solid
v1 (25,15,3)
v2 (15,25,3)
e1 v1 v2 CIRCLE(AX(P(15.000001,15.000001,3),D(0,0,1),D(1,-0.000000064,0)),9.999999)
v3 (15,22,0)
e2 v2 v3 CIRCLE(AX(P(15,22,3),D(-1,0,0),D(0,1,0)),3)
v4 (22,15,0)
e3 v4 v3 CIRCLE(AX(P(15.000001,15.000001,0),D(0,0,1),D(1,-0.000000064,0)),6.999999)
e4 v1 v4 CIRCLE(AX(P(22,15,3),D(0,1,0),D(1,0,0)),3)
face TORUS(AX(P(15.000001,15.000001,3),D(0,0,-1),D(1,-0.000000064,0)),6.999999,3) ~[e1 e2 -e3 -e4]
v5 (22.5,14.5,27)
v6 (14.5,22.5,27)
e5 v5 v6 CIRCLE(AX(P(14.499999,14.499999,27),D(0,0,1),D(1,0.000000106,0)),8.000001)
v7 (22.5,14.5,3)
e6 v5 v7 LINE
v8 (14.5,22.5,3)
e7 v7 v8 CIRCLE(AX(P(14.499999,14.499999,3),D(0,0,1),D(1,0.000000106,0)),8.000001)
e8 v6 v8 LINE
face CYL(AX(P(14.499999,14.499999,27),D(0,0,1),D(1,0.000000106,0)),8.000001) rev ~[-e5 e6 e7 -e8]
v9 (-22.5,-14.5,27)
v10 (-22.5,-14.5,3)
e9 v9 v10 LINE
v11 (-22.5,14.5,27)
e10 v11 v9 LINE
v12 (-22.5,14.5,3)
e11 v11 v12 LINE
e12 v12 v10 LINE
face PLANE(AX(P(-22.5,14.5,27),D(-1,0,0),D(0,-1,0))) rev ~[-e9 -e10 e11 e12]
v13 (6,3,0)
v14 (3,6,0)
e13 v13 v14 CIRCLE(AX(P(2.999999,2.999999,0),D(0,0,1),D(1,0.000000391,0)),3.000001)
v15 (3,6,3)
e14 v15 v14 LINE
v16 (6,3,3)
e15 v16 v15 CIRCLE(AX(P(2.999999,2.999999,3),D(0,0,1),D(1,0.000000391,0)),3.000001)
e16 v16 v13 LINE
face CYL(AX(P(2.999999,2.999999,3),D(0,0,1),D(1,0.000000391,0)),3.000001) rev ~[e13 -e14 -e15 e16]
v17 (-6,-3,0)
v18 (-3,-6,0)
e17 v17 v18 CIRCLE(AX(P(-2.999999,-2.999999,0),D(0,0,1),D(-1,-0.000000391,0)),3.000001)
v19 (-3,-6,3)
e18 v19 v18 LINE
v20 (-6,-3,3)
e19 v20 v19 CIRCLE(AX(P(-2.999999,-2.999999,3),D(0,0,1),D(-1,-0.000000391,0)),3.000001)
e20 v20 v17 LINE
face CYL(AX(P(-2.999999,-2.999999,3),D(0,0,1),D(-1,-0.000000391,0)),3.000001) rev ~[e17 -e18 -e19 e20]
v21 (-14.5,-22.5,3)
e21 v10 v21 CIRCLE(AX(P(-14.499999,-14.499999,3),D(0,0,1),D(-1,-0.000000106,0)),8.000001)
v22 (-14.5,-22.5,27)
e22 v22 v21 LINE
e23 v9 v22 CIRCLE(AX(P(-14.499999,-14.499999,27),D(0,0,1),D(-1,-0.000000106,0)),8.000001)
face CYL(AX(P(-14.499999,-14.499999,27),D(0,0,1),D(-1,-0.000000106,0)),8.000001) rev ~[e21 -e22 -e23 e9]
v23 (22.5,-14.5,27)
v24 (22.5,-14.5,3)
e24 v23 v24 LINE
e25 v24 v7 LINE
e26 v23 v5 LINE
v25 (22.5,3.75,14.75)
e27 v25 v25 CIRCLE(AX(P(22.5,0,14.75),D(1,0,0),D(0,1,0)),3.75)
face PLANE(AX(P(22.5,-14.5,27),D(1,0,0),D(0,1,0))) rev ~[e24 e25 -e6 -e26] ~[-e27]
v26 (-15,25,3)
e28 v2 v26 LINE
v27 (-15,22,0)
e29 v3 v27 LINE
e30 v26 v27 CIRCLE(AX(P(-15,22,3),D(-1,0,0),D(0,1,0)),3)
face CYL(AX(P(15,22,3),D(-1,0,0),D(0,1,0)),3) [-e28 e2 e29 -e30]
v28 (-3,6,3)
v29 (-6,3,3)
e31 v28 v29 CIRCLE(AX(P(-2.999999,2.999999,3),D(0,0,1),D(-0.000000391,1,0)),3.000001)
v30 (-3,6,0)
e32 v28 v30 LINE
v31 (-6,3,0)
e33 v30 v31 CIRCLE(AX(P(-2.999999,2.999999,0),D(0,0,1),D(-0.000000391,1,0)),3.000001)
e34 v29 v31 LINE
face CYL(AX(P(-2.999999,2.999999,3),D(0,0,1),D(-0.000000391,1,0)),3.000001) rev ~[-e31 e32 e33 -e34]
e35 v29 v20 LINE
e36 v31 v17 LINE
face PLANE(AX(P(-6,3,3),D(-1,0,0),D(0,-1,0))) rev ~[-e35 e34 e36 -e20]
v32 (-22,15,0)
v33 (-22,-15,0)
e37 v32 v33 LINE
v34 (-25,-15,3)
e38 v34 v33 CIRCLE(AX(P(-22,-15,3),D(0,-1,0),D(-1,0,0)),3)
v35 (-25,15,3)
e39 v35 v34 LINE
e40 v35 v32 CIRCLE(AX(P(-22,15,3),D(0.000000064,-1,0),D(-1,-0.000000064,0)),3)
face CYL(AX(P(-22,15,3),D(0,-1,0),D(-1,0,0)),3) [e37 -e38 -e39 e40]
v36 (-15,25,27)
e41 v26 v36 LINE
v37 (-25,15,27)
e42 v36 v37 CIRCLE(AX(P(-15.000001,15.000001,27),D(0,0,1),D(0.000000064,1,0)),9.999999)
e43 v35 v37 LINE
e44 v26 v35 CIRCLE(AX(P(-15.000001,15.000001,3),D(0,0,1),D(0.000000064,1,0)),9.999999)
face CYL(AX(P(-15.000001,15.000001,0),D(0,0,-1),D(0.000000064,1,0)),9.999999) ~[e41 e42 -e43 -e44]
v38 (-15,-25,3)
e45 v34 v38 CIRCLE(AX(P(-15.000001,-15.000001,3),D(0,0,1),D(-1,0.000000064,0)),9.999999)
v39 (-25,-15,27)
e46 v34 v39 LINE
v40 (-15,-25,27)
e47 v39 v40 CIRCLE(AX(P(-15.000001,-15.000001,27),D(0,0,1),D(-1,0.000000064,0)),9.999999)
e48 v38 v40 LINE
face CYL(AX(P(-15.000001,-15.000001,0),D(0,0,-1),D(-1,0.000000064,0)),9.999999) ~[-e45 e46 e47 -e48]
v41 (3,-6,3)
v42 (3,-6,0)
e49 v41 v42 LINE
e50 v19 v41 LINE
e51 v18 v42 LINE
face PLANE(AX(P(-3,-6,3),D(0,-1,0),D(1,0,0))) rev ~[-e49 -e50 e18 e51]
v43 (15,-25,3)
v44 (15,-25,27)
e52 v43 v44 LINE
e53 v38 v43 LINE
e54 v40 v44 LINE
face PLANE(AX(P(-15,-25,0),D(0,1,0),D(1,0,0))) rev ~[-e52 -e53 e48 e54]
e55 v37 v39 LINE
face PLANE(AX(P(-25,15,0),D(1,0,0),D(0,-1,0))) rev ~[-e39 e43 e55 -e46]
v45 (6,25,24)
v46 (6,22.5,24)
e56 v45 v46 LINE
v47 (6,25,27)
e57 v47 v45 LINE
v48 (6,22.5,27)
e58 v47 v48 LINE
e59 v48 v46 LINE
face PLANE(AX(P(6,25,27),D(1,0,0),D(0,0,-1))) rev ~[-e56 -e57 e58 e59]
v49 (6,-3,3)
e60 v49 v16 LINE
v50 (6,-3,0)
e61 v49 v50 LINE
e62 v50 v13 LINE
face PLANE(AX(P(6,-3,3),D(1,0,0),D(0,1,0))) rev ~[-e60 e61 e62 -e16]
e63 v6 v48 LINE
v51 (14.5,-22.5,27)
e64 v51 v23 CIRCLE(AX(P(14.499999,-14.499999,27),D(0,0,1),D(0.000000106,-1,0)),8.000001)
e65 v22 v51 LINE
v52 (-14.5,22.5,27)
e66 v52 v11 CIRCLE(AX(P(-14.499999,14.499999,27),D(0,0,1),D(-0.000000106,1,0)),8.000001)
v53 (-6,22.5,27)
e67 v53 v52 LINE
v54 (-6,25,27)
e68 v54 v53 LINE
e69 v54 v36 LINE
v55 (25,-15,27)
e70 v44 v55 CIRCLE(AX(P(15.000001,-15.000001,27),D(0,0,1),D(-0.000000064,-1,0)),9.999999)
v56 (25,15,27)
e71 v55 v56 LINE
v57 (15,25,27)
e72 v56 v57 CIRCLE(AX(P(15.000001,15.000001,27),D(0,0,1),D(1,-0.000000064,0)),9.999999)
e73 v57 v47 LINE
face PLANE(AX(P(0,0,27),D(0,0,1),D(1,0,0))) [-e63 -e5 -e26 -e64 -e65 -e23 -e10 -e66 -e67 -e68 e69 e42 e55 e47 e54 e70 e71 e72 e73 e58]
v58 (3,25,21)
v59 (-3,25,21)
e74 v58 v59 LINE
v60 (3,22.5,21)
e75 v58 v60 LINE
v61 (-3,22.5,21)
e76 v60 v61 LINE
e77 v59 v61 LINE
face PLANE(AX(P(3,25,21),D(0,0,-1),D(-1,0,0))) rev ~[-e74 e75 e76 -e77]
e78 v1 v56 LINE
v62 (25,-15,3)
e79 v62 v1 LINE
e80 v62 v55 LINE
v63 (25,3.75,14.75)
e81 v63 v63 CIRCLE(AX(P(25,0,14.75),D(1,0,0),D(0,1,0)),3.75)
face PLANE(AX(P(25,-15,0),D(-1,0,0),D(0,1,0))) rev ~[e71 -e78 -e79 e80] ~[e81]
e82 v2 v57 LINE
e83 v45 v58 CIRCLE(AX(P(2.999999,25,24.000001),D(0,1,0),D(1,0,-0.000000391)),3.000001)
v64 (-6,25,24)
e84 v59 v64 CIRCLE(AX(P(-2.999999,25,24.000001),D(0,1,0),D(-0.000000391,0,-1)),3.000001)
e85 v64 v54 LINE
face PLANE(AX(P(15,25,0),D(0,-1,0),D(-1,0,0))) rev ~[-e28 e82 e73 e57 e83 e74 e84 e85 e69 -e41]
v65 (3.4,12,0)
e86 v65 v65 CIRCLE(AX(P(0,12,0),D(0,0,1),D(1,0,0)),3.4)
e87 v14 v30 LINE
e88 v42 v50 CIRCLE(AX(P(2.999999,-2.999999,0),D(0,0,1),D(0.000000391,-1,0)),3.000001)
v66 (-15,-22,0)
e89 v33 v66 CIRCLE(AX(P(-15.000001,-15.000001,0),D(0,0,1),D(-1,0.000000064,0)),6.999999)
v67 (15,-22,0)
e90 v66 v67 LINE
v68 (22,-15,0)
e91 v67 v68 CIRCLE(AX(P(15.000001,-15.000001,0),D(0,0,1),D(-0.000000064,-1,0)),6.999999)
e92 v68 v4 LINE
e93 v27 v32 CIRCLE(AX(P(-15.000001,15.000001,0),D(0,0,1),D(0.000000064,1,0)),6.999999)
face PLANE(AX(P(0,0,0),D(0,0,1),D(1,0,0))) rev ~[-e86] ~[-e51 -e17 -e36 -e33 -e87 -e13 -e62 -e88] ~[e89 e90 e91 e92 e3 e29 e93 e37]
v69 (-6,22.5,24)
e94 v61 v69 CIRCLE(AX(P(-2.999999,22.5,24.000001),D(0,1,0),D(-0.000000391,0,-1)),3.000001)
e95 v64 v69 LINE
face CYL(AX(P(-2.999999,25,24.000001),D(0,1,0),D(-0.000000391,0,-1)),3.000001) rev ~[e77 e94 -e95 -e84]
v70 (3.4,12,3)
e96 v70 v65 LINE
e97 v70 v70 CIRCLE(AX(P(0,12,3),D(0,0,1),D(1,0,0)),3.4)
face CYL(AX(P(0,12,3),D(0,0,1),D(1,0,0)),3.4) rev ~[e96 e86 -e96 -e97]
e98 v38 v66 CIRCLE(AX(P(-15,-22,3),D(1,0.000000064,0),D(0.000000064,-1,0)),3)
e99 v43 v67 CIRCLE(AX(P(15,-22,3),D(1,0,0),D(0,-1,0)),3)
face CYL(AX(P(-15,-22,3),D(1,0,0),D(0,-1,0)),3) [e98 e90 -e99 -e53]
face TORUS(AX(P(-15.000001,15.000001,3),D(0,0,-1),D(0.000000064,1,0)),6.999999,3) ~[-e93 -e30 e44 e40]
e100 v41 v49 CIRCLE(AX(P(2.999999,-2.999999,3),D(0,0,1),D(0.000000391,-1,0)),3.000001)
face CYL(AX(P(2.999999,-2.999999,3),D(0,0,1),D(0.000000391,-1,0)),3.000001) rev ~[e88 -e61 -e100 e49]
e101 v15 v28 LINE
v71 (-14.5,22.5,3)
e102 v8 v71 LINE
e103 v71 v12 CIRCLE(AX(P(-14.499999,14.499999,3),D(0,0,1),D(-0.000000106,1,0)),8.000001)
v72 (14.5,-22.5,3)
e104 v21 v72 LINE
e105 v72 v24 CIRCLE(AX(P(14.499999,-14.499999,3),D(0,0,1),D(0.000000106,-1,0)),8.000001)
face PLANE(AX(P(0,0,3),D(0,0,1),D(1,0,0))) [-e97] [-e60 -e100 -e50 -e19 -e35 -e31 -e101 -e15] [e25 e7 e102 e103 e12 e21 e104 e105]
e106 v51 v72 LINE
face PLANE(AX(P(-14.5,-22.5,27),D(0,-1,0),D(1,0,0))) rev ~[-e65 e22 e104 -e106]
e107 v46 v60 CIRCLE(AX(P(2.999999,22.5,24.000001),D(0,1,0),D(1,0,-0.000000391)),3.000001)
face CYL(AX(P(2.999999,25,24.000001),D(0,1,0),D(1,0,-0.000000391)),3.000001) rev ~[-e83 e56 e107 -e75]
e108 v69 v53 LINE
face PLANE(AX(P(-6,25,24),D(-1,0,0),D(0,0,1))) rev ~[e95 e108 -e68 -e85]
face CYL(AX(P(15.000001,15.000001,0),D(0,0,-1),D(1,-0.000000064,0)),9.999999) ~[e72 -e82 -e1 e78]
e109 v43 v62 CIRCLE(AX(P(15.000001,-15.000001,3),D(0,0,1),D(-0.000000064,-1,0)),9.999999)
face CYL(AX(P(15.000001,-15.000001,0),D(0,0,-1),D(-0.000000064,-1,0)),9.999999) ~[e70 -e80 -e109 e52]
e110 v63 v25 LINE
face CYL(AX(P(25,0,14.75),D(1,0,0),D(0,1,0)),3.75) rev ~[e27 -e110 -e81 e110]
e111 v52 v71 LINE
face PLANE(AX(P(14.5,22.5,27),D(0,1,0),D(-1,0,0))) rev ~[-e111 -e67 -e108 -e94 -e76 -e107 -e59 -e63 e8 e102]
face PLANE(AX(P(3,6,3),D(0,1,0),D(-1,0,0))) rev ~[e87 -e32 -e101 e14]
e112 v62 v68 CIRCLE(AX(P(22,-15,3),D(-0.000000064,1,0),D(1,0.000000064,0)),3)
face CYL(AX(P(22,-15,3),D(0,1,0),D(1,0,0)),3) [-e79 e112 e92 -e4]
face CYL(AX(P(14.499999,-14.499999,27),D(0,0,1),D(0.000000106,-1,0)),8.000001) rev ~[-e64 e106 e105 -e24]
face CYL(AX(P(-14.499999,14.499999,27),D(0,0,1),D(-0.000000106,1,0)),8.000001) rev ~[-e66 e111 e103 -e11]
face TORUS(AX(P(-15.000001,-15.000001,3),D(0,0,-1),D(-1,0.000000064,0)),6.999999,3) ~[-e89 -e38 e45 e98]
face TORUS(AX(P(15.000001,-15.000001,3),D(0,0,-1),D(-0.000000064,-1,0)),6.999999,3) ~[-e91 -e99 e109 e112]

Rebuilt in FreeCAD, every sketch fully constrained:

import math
import FreeCAD as App
import Part
import Sketcher


def edges_at(feature, points):
    """Names of the edges that pass closest to the given points."""
    edges = feature.Shape.Edges
    near = lambda p: min(range(len(edges)), key=lambda i: edges[i].distToShape(Part.Vertex(*p))[0])
    return sorted({f"Edge{near(p) + 1}" for p in points})

doc = App.newDocument("Part")
params = doc.addObject("Spreadsheet::Sheet", "Params")
for row, (alias, value) in enumerate([
    ("sketch1_radius", "9.999999 mm"),
    ("sketch1_width", "30 mm"),
    ("pad1_length", "27 mm"),
    ("sketch2_radius", "8.000001 mm"),
    ("sketch2_width", "29 mm"),
    ("pocket1_length", "24 mm"),
    ("sketch3_radius", "3.000001 mm"),
    ("sketch3_width", "6 mm"),
    ("pocket2_length", "3 mm"),
    ("sketch4_radius", "3.000001 mm"),
    ("sketch4_diameter", "6.8 mm"),
    ("sketch4_width", "6 mm"),
    ("pocket3_length", "3 mm"),
    ("sketch5_radius", "3.000001 mm"),
    ("sketch5_width", "6 mm"),
    ("sketch5_height", "3 mm"),
    ("pocket4_length", "3 mm"),
    ("fillet_radius", "3 mm"),
    ("sketch6_diameter", "7.5 mm"),
    ("pocket5_length", "3 mm"),
], start=1):
    params.set(f"A{row}", alias)
    params.set(f"B{row}", "=" + value)
    params.setAlias(f"B{row}", alias)

body = doc.addObject("PartDesign::Body", "Body")

# Sketch on XY plane
sketch1 = doc.addObject("Sketcher::SketchObject", "Sketch")
body.addObject(sketch1)
sketch1.AttachmentSupport = (doc.XY_Plane, [""])
sketch1.MapMode = "FlatFace"
sketch1.addGeometry([
    Part.ArcOfCircle(Part.Circle(App.Vector(15, 15, 0), App.Vector(0, 0, 1), 10), math.radians(0), math.radians(90)),  # 0
    Part.LineSegment(App.Vector(15, 25, 0), App.Vector(-15, 25, 0)),  # 1
    Part.ArcOfCircle(Part.Circle(App.Vector(-15, 15, 0), App.Vector(0, 0, 1), 10), math.radians(90), math.radians(180)),  # 2
    Part.LineSegment(App.Vector(-25, 15, 0), App.Vector(-25, -15, 0)),  # 3
    Part.ArcOfCircle(Part.Circle(App.Vector(-15, -15, 0), App.Vector(0, 0, 1), 10), math.radians(180), math.radians(270)),  # 4
    Part.LineSegment(App.Vector(-15, -25, 0), App.Vector(15, -25, 0)),  # 5
    Part.ArcOfCircle(Part.Circle(App.Vector(15, -15, 0), App.Vector(0, 0, 1), 10), math.radians(-90), math.radians(0)),  # 6
    Part.LineSegment(App.Vector(25, -15, 0), App.Vector(25, 15, 0)),  # 7
], False)
sketch1.addConstraint([
    Sketcher.Constraint("Tangent", 0, 2, 1, 1),
    Sketcher.Constraint("Tangent", 1, 2, 2, 1),
    Sketcher.Constraint("Tangent", 2, 2, 3, 1),
    Sketcher.Constraint("Tangent", 3, 2, 4, 1),
    Sketcher.Constraint("Tangent", 4, 2, 5, 1),
    Sketcher.Constraint("Tangent", 5, 2, 6, 1),
    Sketcher.Constraint("Tangent", 6, 2, 7, 1),
    Sketcher.Constraint("Tangent", 7, 2, 0, 1),
    Sketcher.Constraint("Horizontal", 1),
    Sketcher.Constraint("Vertical", 3),
    Sketcher.Constraint("Horizontal", 5),
    Sketcher.Constraint("Vertical", 7),
    Sketcher.Constraint("Equal", 0, 2),
    Sketcher.Constraint("Equal", 2, 4),
    Sketcher.Constraint("Equal", 4, 6),
    Sketcher.Constraint("Symmetric", 0, 3, 4, 3, -1, 1),
    Sketcher.Constraint("Equal", 5, 3),
    Sketcher.Constraint("Radius", 0, 9.999999),
    Sketcher.Constraint("DistanceX", 1, 2, 1, 1, 30.0),
])
sketch1.setExpression("Constraints[17]", "Params.sketch1_radius")
sketch1.setExpression("Constraints[18]", "Params.sketch1_width")
pad1 = doc.addObject("PartDesign::Pad", "Pad")
body.addObject(pad1)
pad1.Profile = sketch1
pad1.setExpression("Length", "Params.pad1_length")

# Sketch on XY plane
sketch2 = doc.addObject("Sketcher::SketchObject", "Sketch001")
body.addObject(sketch2)
sketch2.AttachmentSupport = (doc.XY_Plane, [""])
sketch2.MapMode = "FlatFace"
sketch2.AttachmentOffset = App.Placement(App.Vector(0, 0, 27), App.Rotation())
sketch2.addGeometry([
    Part.ArcOfCircle(Part.Circle(App.Vector(14, 14, 0), App.Vector(0, 0, 1), 8), math.radians(0), math.radians(90)),  # 0
    Part.LineSegment(App.Vector(14, 22, 0), App.Vector(-14, 22, 0)),  # 1
    Part.ArcOfCircle(Part.Circle(App.Vector(-14, 14, 0), App.Vector(0, 0, 1), 8), math.radians(90), math.radians(180)),  # 2
    Part.LineSegment(App.Vector(-22, 14, 0), App.Vector(-22, -14, 0)),  # 3
    Part.ArcOfCircle(Part.Circle(App.Vector(-14, -14, 0), App.Vector(0, 0, 1), 8), math.radians(-180), math.radians(-90)),  # 4
    Part.LineSegment(App.Vector(-14, -22, 0), App.Vector(14, -22, 0)),  # 5
    Part.ArcOfCircle(Part.Circle(App.Vector(14, -14, 0), App.Vector(0, 0, 1), 8), math.radians(-90), math.radians(0)),  # 6
    Part.LineSegment(App.Vector(22, -14, 0), App.Vector(22, 14, 0)),  # 7
], False)
sketch2.addConstraint([
    Sketcher.Constraint("Tangent", 0, 2, 1, 1),
    Sketcher.Constraint("Tangent", 1, 2, 2, 1),
    Sketcher.Constraint("Tangent", 2, 2, 3, 1),
    Sketcher.Constraint("Tangent", 3, 2, 4, 1),
    Sketcher.Constraint("Tangent", 4, 2, 5, 1),
    Sketcher.Constraint("Tangent", 5, 2, 6, 1),
    Sketcher.Constraint("Tangent", 6, 2, 7, 1),
    Sketcher.Constraint("Tangent", 7, 2, 0, 1),
    Sketcher.Constraint("Horizontal", 1),
    Sketcher.Constraint("Vertical", 3),
    Sketcher.Constraint("Horizontal", 5),
    Sketcher.Constraint("Vertical", 7),
    Sketcher.Constraint("Equal", 0, 2),
    Sketcher.Constraint("Equal", 2, 4),
    Sketcher.Constraint("Equal", 4, 6),
    Sketcher.Constraint("Symmetric", 0, 3, 4, 3, -1, 1),
    Sketcher.Constraint("Equal", 5, 3),
    Sketcher.Constraint("Radius", 0, 8.000001),
    Sketcher.Constraint("DistanceX", 1, 2, 1, 1, 29.0),
])
sketch2.setExpression("Constraints[17]", "Params.sketch2_radius")
sketch2.setExpression("Constraints[18]", "Params.sketch2_width")
pocket1 = doc.addObject("PartDesign::Pocket", "Pocket")
body.addObject(pocket1)
pocket1.Profile = sketch2
pocket1.setExpression("Length", "Params.pocket1_length")

# Sketch on XY plane
sketch3 = doc.addObject("Sketcher::SketchObject", "Sketch002")
body.addObject(sketch3)
sketch3.AttachmentSupport = (doc.XY_Plane, [""])
sketch3.MapMode = "FlatFace"
sketch3.AttachmentOffset = App.Placement(App.Vector(0, 0, 3), App.Rotation())
sketch3.addGeometry([
    Part.ArcOfCircle(Part.Circle(App.Vector(3, 3, 0), App.Vector(0, 0, 1), 3), math.radians(0), math.radians(90)),  # 0
    Part.LineSegment(App.Vector(3, 6, 0), App.Vector(-3, 6, 0)),  # 1
    Part.ArcOfCircle(Part.Circle(App.Vector(-3, 3, 0), App.Vector(0, 0, 1), 3), math.radians(90), math.radians(180)),  # 2
    Part.LineSegment(App.Vector(-6, 3, 0), App.Vector(-6, -3, 0)),  # 3
    Part.ArcOfCircle(Part.Circle(App.Vector(-3, -3, 0), App.Vector(0, 0, 1), 3), math.radians(-180), math.radians(-90)),  # 4
    Part.LineSegment(App.Vector(-3, -6, 0), App.Vector(3, -6, 0)),  # 5
    Part.ArcOfCircle(Part.Circle(App.Vector(3, -3, 0), App.Vector(0, 0, 1), 3), math.radians(-90), math.radians(0)),  # 6
    Part.LineSegment(App.Vector(6, -3, 0), App.Vector(6, 3, 0)),  # 7
], False)
sketch3.addConstraint([
    Sketcher.Constraint("Tangent", 0, 2, 1, 1),
    Sketcher.Constraint("Tangent", 1, 2, 2, 1),
    Sketcher.Constraint("Tangent", 2, 2, 3, 1),
    Sketcher.Constraint("Tangent", 3, 2, 4, 1),
    Sketcher.Constraint("Tangent", 4, 2, 5, 1),
    Sketcher.Constraint("Tangent", 5, 2, 6, 1),
    Sketcher.Constraint("Tangent", 6, 2, 7, 1),
    Sketcher.Constraint("Tangent", 7, 2, 0, 1),
    Sketcher.Constraint("Horizontal", 1),
    Sketcher.Constraint("Vertical", 3),
    Sketcher.Constraint("Horizontal", 5),
    Sketcher.Constraint("Vertical", 7),
    Sketcher.Constraint("Equal", 0, 2),
    Sketcher.Constraint("Equal", 2, 4),
    Sketcher.Constraint("Equal", 4, 6),
    Sketcher.Constraint("Symmetric", 0, 3, 4, 3, -1, 1),
    Sketcher.Constraint("Equal", 5, 3),
    Sketcher.Constraint("Radius", 0, 3.000001),
    Sketcher.Constraint("DistanceX", 1, 2, 1, 1, 6.0),
])
sketch3.setExpression("Constraints[17]", "Params.sketch3_radius")
sketch3.setExpression("Constraints[18]", "Params.sketch3_width")
pocket2 = doc.addObject("PartDesign::Pocket", "Pocket001")
body.addObject(pocket2)
pocket2.Profile = sketch3
pocket2.setExpression("Length", "Params.pocket2_length")

# Sketch on XY plane
sketch4 = doc.addObject("Sketcher::SketchObject", "Sketch003")
body.addObject(sketch4)
sketch4.AttachmentSupport = (doc.XY_Plane, [""])
sketch4.MapMode = "FlatFace"
sketch4.AttachmentOffset = App.Placement(App.Vector(0, 0, 3), App.Rotation())
sketch4.addGeometry([
    Part.ArcOfCircle(Part.Circle(App.Vector(3, 3, 0), App.Vector(0, 0, 1), 3), math.radians(0), math.radians(90)),  # 0
    Part.LineSegment(App.Vector(3, 6, 0), App.Vector(-3, 6, 0)),  # 1
    Part.ArcOfCircle(Part.Circle(App.Vector(-3, 3, 0), App.Vector(0, 0, 1), 3), math.radians(90), math.radians(180)),  # 2
    Part.LineSegment(App.Vector(-6, 3, 0), App.Vector(-6, -3, 0)),  # 3
    Part.ArcOfCircle(Part.Circle(App.Vector(-3, -3, 0), App.Vector(0, 0, 1), 3), math.radians(-180), math.radians(-90)),  # 4
    Part.LineSegment(App.Vector(-3, -6, 0), App.Vector(3, -6, 0)),  # 5
    Part.ArcOfCircle(Part.Circle(App.Vector(3, -3, 0), App.Vector(0, 0, 1), 3), math.radians(-90), math.radians(0)),  # 6
    Part.LineSegment(App.Vector(6, -3, 0), App.Vector(6, 3, 0)),  # 7
    Part.Circle(App.Vector(0, 12, 0), App.Vector(0, 0, 1), 3.4),  # 8
], False)
sketch4.addConstraint([
    Sketcher.Constraint("Tangent", 0, 2, 1, 1),
    Sketcher.Constraint("Tangent", 1, 2, 2, 1),
    Sketcher.Constraint("Tangent", 2, 2, 3, 1),
    Sketcher.Constraint("Tangent", 3, 2, 4, 1),
    Sketcher.Constraint("Tangent", 4, 2, 5, 1),
    Sketcher.Constraint("Tangent", 5, 2, 6, 1),
    Sketcher.Constraint("Tangent", 6, 2, 7, 1),
    Sketcher.Constraint("Tangent", 7, 2, 0, 1),
    Sketcher.Constraint("Horizontal", 1),
    Sketcher.Constraint("Vertical", 3),
    Sketcher.Constraint("Horizontal", 5),
    Sketcher.Constraint("Vertical", 7),
    Sketcher.Constraint("Equal", 0, 2),
    Sketcher.Constraint("Equal", 2, 4),
    Sketcher.Constraint("Equal", 4, 6),
    Sketcher.Constraint("Symmetric", 0, 3, 4, 3, -1, 1),
    Sketcher.Constraint("PointOnObject", 8, 3, -2),
    Sketcher.Constraint("Equal", 5, 3),
    Sketcher.Constraint("Radius", 0, 3.000001),
    Sketcher.Constraint("Diameter", 8, 6.8),
    Sketcher.Constraint("DistanceX", 1, 2, 1, 1, 6.0),
    Sketcher.Constraint("DistanceY", -1, 1, 8, 3, 12.0),
])
sketch4.setExpression("Constraints[18]", "Params.sketch4_radius")
sketch4.setExpression("Constraints[19]", "Params.sketch4_diameter")
sketch4.setExpression("Constraints[20]", "Params.sketch4_width")
pocket3 = doc.addObject("PartDesign::Pocket", "Pocket002")
body.addObject(pocket3)
pocket3.Profile = sketch4
pocket3.setExpression("Length", "Params.pocket3_length")

# Sketch on XZ plane
sketch5 = doc.addObject("Sketcher::SketchObject", "Sketch004")
body.addObject(sketch5)
sketch5.AttachmentSupport = (doc.XZ_Plane, [""])
sketch5.MapMode = "FlatFace"
sketch5.AttachmentOffset = App.Placement(App.Vector(0, 0, -25), App.Rotation())
sketch5.addGeometry([
    Part.LineSegment(App.Vector(3, 21, 0), App.Vector(-3, 21, 0)),  # 0
    Part.ArcOfCircle(Part.Circle(App.Vector(-3, 24, 0), App.Vector(0, 0, 1), 3), math.radians(-180), math.radians(-90)),  # 1
    Part.LineSegment(App.Vector(-6, 24, 0), App.Vector(-6, 27, 0)),  # 2
    Part.LineSegment(App.Vector(-6, 27, 0), App.Vector(6, 27, 0)),  # 3
    Part.LineSegment(App.Vector(6, 27, 0), App.Vector(6, 24, 0)),  # 4
    Part.ArcOfCircle(Part.Circle(App.Vector(3, 24, 0), App.Vector(0, 0, 1), 3), math.radians(-90), math.radians(0)),  # 5
], False)
sketch5.addConstraint([
    Sketcher.Constraint("Tangent", 0, 2, 1, 2),
    Sketcher.Constraint("Tangent", 1, 1, 2, 1),
    Sketcher.Constraint("Coincident", 2, 2, 3, 1),
    Sketcher.Constraint("Coincident", 3, 2, 4, 1),
    Sketcher.Constraint("Tangent", 4, 2, 5, 2),
    Sketcher.Constraint("Tangent", 5, 1, 0, 1),
    Sketcher.Constraint("Horizontal", 0),
    Sketcher.Constraint("Vertical", 2),
    Sketcher.Constraint("Horizontal", 3),
    Sketcher.Constraint("Vertical", 4),
    Sketcher.Constraint("Equal", 1, 5),
    Sketcher.Constraint("Radius", 1, 3.000001),
    Sketcher.Constraint("DistanceX", 0, 2, 0, 1, 6.0),
    Sketcher.Constraint("DistanceY", 2, 1, 2, 2, 3.0),
    Sketcher.Constraint("DistanceX", 1, 3, -1, 1, 2.999999),
    Sketcher.Constraint("DistanceY", -1, 1, 1, 3, 24.000001),
])
sketch5.setExpression("Constraints[11]", "Params.sketch5_radius")
sketch5.setExpression("Constraints[12]", "Params.sketch5_width")
sketch5.setExpression("Constraints[13]", "Params.sketch5_height")
pocket4 = doc.addObject("PartDesign::Pocket", "Pocket003")
body.addObject(pocket4)
pocket4.Profile = sketch5
pocket4.setExpression("Length", "Params.pocket4_length")
pocket4.Reversed = True
doc.recompute()

fillet = doc.addObject("PartDesign::Fillet", "Fillet")
body.addObject(fillet)
fillet.Base = (pocket4, edges_at(pocket4, [(0, 25, 0)]))
fillet.setExpression("Radius", "Params.fillet_radius")

# Sketch on YZ plane
sketch6 = doc.addObject("Sketcher::SketchObject", "Sketch005")
body.addObject(sketch6)
sketch6.AttachmentSupport = (doc.YZ_Plane, [""])
sketch6.MapMode = "FlatFace"
sketch6.AttachmentOffset = App.Placement(App.Vector(0, 0, 25), App.Rotation())
sketch6.addGeometry(Part.Circle(App.Vector(0, 14.8, 0), App.Vector(0, 0, 1), 3.8), False)
sketch6.addConstraint([
    Sketcher.Constraint("PointOnObject", 0, 3, -2),
    Sketcher.Constraint("Diameter", 0, 7.5),
    Sketcher.Constraint("DistanceY", -1, 1, 0, 3, 14.75),
])
sketch6.setExpression("Constraints[1]", "Params.sketch6_diameter")
pocket5 = doc.addObject("PartDesign::Pocket", "Pocket004")
body.addObject(pocket5)
pocket5.Profile = sketch6
pocket5.setExpression("Length", "Params.pocket5_length")

doc.recompute()
